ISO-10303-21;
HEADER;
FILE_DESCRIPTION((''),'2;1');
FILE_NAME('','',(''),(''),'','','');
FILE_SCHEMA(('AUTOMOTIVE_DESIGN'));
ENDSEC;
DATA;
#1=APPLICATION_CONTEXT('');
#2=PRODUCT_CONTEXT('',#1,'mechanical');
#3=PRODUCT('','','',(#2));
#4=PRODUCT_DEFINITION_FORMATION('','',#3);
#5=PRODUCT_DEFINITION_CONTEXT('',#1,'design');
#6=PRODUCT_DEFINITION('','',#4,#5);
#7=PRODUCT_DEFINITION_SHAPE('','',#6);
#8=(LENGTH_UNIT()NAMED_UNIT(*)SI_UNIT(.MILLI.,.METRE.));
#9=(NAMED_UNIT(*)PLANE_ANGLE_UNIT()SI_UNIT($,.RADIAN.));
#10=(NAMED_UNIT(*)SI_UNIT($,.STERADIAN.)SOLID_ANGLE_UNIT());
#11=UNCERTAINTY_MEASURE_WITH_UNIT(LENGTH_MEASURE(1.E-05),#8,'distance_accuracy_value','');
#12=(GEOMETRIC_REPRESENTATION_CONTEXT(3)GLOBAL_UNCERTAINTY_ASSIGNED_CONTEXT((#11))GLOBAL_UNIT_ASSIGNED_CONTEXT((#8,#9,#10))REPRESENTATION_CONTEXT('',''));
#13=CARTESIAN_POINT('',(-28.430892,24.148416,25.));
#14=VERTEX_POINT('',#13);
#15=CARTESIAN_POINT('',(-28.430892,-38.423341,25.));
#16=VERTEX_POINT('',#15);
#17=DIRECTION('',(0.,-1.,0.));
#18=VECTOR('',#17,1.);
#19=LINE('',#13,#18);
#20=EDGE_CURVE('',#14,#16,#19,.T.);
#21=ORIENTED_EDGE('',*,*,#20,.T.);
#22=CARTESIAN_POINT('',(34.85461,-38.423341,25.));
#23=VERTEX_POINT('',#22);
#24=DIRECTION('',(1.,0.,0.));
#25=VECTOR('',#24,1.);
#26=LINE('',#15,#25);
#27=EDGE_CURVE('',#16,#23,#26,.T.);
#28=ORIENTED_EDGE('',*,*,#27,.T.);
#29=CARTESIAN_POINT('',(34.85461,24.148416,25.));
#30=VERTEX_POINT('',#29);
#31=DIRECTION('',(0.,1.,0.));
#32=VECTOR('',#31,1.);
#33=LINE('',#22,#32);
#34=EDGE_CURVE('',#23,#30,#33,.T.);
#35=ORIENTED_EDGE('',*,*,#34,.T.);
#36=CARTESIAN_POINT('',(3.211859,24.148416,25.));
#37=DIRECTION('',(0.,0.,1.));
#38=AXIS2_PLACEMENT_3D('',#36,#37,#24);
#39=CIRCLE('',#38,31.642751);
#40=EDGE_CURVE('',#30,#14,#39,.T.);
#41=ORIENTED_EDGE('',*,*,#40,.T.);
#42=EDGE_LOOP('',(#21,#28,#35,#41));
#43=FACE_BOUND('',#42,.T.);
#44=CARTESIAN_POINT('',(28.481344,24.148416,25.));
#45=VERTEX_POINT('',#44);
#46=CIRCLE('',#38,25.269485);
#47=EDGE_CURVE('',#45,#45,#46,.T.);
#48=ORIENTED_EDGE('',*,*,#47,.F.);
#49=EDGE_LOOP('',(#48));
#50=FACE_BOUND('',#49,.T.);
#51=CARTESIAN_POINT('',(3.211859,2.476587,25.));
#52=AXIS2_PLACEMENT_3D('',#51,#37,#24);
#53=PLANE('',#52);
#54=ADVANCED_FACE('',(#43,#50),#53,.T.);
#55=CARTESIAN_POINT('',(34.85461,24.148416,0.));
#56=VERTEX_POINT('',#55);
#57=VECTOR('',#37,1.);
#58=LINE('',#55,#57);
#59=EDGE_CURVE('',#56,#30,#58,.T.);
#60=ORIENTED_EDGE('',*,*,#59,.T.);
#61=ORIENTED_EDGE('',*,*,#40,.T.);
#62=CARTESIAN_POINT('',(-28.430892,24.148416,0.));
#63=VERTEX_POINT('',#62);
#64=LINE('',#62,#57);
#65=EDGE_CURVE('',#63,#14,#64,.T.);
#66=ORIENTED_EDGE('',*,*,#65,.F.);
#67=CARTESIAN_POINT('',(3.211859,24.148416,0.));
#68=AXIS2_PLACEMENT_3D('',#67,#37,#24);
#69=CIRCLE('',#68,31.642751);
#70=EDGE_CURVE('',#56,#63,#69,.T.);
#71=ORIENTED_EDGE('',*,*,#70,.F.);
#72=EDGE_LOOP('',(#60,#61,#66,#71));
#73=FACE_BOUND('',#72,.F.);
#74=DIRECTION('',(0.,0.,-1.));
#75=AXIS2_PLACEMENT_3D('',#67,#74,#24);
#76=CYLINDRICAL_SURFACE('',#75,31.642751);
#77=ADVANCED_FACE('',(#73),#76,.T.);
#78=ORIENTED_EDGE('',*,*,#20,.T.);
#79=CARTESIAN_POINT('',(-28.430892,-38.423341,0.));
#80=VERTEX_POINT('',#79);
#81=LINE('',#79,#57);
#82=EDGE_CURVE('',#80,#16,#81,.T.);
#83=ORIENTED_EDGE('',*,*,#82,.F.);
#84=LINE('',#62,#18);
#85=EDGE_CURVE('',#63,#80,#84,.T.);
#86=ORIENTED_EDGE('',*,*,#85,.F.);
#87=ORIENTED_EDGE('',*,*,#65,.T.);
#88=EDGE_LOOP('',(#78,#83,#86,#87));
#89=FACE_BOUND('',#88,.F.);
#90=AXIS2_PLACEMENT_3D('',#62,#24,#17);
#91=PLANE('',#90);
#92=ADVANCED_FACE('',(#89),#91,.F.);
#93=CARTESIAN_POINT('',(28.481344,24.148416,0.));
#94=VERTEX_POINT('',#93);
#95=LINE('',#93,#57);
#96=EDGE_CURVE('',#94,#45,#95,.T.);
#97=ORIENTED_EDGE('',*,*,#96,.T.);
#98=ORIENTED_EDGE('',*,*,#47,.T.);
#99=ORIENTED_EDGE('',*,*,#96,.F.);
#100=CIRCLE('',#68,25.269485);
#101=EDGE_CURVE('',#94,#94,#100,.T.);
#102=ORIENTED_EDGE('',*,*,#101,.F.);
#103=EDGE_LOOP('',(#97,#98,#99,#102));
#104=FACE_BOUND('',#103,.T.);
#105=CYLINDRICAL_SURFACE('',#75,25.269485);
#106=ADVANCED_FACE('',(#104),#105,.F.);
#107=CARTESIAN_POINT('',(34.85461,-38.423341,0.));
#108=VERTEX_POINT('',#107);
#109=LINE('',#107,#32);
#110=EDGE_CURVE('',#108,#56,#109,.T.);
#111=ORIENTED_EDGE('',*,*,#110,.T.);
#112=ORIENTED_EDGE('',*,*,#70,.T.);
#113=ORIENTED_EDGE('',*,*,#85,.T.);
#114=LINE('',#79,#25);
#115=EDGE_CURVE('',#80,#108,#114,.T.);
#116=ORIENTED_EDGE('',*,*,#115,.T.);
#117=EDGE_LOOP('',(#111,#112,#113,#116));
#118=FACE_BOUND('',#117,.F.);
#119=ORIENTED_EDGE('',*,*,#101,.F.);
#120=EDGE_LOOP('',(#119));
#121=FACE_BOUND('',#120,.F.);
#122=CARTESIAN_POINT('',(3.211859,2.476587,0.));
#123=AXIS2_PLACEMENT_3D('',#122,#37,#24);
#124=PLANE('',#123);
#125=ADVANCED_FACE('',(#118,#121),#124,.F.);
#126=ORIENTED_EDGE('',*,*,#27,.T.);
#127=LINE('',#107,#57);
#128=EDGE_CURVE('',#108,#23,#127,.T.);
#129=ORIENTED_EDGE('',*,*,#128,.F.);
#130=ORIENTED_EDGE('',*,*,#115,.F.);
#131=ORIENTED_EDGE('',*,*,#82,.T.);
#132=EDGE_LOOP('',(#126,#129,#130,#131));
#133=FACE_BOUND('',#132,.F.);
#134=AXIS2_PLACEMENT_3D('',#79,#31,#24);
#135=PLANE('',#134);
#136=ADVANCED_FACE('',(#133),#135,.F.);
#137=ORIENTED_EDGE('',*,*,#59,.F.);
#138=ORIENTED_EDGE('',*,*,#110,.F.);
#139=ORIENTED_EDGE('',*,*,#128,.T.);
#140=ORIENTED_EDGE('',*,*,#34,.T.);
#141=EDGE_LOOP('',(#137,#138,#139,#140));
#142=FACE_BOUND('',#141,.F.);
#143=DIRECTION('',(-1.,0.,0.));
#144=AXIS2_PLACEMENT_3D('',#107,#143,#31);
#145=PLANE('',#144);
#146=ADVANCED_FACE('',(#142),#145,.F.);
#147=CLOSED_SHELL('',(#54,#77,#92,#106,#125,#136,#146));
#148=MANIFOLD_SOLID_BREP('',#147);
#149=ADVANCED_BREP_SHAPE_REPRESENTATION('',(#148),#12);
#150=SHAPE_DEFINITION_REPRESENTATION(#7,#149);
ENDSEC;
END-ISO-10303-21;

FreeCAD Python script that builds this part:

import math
import FreeCAD as App
import Part
import Sketcher
Q = App.Units.Quantity

doc = App.newDocument("Part")
body = doc.addObject("PartDesign::Body", "Body")

# Sketch on XY plane
sketch1 = doc.addObject("Sketcher::SketchObject", "Sketch")
body.addObject(sketch1)
sketch1.AttachmentSupport = (doc.XY_Plane, [""])
sketch1.MapMode = "FlatFace"
sketch1.addGeometry([
    Part.LineSegment(App.Vector(-28, 24, 0), App.Vector(-28, -38, 0)),  # 0
    Part.LineSegment(App.Vector(-28, -38, 0), App.Vector(35, -38, 0)),  # 1
    Part.LineSegment(App.Vector(35, -38, 0), App.Vector(35, 24, 0)),  # 2
    Part.ArcOfCircle(Part.Circle(App.Vector(3, 24, 0), App.Vector(0, 0, 1), 32), math.radians(0), math.radians(180)),  # 3
    Part.Circle(App.Vector(3, 24, 0), App.Vector(0, 0, 1), 25),  # 4
], False)
sketch1.addConstraint([
    Sketcher.Constraint("Coincident", 0, 2, 1, 1),
    Sketcher.Constraint("Coincident", 1, 2, 2, 1),
    Sketcher.Constraint("Tangent", 2, 2, 3, 1),
    Sketcher.Constraint("Tangent", 3, 2, 0, 1),
    Sketcher.Constraint("Vertical", 0),
    Sketcher.Constraint("Horizontal", 1),
    Sketcher.Constraint("Vertical", 2),
    Sketcher.Constraint("Coincident", 4, 3, 3, 3),
    Sketcher.Constraint("Diameter", 4, Q("50.53897 mm")),
    Sketcher.Constraint("Radius", 3, Q("31.642751 mm")),
    Sketcher.Constraint("DistanceY", 0, 2, 0, 1, Q("62.571757 mm")),
    Sketcher.Constraint("DistanceX", -1, 1, 3, 3, Q("3.211859 mm")),
    Sketcher.Constraint("DistanceY", 0, 2, -1, 1, Q("38.423341 mm")),
])
pad1 = doc.addObject("PartDesign::Pad", "Pad")
body.addObject(pad1)
pad1.Profile = sketch1
pad1.Length = 25

doc.recompute()
